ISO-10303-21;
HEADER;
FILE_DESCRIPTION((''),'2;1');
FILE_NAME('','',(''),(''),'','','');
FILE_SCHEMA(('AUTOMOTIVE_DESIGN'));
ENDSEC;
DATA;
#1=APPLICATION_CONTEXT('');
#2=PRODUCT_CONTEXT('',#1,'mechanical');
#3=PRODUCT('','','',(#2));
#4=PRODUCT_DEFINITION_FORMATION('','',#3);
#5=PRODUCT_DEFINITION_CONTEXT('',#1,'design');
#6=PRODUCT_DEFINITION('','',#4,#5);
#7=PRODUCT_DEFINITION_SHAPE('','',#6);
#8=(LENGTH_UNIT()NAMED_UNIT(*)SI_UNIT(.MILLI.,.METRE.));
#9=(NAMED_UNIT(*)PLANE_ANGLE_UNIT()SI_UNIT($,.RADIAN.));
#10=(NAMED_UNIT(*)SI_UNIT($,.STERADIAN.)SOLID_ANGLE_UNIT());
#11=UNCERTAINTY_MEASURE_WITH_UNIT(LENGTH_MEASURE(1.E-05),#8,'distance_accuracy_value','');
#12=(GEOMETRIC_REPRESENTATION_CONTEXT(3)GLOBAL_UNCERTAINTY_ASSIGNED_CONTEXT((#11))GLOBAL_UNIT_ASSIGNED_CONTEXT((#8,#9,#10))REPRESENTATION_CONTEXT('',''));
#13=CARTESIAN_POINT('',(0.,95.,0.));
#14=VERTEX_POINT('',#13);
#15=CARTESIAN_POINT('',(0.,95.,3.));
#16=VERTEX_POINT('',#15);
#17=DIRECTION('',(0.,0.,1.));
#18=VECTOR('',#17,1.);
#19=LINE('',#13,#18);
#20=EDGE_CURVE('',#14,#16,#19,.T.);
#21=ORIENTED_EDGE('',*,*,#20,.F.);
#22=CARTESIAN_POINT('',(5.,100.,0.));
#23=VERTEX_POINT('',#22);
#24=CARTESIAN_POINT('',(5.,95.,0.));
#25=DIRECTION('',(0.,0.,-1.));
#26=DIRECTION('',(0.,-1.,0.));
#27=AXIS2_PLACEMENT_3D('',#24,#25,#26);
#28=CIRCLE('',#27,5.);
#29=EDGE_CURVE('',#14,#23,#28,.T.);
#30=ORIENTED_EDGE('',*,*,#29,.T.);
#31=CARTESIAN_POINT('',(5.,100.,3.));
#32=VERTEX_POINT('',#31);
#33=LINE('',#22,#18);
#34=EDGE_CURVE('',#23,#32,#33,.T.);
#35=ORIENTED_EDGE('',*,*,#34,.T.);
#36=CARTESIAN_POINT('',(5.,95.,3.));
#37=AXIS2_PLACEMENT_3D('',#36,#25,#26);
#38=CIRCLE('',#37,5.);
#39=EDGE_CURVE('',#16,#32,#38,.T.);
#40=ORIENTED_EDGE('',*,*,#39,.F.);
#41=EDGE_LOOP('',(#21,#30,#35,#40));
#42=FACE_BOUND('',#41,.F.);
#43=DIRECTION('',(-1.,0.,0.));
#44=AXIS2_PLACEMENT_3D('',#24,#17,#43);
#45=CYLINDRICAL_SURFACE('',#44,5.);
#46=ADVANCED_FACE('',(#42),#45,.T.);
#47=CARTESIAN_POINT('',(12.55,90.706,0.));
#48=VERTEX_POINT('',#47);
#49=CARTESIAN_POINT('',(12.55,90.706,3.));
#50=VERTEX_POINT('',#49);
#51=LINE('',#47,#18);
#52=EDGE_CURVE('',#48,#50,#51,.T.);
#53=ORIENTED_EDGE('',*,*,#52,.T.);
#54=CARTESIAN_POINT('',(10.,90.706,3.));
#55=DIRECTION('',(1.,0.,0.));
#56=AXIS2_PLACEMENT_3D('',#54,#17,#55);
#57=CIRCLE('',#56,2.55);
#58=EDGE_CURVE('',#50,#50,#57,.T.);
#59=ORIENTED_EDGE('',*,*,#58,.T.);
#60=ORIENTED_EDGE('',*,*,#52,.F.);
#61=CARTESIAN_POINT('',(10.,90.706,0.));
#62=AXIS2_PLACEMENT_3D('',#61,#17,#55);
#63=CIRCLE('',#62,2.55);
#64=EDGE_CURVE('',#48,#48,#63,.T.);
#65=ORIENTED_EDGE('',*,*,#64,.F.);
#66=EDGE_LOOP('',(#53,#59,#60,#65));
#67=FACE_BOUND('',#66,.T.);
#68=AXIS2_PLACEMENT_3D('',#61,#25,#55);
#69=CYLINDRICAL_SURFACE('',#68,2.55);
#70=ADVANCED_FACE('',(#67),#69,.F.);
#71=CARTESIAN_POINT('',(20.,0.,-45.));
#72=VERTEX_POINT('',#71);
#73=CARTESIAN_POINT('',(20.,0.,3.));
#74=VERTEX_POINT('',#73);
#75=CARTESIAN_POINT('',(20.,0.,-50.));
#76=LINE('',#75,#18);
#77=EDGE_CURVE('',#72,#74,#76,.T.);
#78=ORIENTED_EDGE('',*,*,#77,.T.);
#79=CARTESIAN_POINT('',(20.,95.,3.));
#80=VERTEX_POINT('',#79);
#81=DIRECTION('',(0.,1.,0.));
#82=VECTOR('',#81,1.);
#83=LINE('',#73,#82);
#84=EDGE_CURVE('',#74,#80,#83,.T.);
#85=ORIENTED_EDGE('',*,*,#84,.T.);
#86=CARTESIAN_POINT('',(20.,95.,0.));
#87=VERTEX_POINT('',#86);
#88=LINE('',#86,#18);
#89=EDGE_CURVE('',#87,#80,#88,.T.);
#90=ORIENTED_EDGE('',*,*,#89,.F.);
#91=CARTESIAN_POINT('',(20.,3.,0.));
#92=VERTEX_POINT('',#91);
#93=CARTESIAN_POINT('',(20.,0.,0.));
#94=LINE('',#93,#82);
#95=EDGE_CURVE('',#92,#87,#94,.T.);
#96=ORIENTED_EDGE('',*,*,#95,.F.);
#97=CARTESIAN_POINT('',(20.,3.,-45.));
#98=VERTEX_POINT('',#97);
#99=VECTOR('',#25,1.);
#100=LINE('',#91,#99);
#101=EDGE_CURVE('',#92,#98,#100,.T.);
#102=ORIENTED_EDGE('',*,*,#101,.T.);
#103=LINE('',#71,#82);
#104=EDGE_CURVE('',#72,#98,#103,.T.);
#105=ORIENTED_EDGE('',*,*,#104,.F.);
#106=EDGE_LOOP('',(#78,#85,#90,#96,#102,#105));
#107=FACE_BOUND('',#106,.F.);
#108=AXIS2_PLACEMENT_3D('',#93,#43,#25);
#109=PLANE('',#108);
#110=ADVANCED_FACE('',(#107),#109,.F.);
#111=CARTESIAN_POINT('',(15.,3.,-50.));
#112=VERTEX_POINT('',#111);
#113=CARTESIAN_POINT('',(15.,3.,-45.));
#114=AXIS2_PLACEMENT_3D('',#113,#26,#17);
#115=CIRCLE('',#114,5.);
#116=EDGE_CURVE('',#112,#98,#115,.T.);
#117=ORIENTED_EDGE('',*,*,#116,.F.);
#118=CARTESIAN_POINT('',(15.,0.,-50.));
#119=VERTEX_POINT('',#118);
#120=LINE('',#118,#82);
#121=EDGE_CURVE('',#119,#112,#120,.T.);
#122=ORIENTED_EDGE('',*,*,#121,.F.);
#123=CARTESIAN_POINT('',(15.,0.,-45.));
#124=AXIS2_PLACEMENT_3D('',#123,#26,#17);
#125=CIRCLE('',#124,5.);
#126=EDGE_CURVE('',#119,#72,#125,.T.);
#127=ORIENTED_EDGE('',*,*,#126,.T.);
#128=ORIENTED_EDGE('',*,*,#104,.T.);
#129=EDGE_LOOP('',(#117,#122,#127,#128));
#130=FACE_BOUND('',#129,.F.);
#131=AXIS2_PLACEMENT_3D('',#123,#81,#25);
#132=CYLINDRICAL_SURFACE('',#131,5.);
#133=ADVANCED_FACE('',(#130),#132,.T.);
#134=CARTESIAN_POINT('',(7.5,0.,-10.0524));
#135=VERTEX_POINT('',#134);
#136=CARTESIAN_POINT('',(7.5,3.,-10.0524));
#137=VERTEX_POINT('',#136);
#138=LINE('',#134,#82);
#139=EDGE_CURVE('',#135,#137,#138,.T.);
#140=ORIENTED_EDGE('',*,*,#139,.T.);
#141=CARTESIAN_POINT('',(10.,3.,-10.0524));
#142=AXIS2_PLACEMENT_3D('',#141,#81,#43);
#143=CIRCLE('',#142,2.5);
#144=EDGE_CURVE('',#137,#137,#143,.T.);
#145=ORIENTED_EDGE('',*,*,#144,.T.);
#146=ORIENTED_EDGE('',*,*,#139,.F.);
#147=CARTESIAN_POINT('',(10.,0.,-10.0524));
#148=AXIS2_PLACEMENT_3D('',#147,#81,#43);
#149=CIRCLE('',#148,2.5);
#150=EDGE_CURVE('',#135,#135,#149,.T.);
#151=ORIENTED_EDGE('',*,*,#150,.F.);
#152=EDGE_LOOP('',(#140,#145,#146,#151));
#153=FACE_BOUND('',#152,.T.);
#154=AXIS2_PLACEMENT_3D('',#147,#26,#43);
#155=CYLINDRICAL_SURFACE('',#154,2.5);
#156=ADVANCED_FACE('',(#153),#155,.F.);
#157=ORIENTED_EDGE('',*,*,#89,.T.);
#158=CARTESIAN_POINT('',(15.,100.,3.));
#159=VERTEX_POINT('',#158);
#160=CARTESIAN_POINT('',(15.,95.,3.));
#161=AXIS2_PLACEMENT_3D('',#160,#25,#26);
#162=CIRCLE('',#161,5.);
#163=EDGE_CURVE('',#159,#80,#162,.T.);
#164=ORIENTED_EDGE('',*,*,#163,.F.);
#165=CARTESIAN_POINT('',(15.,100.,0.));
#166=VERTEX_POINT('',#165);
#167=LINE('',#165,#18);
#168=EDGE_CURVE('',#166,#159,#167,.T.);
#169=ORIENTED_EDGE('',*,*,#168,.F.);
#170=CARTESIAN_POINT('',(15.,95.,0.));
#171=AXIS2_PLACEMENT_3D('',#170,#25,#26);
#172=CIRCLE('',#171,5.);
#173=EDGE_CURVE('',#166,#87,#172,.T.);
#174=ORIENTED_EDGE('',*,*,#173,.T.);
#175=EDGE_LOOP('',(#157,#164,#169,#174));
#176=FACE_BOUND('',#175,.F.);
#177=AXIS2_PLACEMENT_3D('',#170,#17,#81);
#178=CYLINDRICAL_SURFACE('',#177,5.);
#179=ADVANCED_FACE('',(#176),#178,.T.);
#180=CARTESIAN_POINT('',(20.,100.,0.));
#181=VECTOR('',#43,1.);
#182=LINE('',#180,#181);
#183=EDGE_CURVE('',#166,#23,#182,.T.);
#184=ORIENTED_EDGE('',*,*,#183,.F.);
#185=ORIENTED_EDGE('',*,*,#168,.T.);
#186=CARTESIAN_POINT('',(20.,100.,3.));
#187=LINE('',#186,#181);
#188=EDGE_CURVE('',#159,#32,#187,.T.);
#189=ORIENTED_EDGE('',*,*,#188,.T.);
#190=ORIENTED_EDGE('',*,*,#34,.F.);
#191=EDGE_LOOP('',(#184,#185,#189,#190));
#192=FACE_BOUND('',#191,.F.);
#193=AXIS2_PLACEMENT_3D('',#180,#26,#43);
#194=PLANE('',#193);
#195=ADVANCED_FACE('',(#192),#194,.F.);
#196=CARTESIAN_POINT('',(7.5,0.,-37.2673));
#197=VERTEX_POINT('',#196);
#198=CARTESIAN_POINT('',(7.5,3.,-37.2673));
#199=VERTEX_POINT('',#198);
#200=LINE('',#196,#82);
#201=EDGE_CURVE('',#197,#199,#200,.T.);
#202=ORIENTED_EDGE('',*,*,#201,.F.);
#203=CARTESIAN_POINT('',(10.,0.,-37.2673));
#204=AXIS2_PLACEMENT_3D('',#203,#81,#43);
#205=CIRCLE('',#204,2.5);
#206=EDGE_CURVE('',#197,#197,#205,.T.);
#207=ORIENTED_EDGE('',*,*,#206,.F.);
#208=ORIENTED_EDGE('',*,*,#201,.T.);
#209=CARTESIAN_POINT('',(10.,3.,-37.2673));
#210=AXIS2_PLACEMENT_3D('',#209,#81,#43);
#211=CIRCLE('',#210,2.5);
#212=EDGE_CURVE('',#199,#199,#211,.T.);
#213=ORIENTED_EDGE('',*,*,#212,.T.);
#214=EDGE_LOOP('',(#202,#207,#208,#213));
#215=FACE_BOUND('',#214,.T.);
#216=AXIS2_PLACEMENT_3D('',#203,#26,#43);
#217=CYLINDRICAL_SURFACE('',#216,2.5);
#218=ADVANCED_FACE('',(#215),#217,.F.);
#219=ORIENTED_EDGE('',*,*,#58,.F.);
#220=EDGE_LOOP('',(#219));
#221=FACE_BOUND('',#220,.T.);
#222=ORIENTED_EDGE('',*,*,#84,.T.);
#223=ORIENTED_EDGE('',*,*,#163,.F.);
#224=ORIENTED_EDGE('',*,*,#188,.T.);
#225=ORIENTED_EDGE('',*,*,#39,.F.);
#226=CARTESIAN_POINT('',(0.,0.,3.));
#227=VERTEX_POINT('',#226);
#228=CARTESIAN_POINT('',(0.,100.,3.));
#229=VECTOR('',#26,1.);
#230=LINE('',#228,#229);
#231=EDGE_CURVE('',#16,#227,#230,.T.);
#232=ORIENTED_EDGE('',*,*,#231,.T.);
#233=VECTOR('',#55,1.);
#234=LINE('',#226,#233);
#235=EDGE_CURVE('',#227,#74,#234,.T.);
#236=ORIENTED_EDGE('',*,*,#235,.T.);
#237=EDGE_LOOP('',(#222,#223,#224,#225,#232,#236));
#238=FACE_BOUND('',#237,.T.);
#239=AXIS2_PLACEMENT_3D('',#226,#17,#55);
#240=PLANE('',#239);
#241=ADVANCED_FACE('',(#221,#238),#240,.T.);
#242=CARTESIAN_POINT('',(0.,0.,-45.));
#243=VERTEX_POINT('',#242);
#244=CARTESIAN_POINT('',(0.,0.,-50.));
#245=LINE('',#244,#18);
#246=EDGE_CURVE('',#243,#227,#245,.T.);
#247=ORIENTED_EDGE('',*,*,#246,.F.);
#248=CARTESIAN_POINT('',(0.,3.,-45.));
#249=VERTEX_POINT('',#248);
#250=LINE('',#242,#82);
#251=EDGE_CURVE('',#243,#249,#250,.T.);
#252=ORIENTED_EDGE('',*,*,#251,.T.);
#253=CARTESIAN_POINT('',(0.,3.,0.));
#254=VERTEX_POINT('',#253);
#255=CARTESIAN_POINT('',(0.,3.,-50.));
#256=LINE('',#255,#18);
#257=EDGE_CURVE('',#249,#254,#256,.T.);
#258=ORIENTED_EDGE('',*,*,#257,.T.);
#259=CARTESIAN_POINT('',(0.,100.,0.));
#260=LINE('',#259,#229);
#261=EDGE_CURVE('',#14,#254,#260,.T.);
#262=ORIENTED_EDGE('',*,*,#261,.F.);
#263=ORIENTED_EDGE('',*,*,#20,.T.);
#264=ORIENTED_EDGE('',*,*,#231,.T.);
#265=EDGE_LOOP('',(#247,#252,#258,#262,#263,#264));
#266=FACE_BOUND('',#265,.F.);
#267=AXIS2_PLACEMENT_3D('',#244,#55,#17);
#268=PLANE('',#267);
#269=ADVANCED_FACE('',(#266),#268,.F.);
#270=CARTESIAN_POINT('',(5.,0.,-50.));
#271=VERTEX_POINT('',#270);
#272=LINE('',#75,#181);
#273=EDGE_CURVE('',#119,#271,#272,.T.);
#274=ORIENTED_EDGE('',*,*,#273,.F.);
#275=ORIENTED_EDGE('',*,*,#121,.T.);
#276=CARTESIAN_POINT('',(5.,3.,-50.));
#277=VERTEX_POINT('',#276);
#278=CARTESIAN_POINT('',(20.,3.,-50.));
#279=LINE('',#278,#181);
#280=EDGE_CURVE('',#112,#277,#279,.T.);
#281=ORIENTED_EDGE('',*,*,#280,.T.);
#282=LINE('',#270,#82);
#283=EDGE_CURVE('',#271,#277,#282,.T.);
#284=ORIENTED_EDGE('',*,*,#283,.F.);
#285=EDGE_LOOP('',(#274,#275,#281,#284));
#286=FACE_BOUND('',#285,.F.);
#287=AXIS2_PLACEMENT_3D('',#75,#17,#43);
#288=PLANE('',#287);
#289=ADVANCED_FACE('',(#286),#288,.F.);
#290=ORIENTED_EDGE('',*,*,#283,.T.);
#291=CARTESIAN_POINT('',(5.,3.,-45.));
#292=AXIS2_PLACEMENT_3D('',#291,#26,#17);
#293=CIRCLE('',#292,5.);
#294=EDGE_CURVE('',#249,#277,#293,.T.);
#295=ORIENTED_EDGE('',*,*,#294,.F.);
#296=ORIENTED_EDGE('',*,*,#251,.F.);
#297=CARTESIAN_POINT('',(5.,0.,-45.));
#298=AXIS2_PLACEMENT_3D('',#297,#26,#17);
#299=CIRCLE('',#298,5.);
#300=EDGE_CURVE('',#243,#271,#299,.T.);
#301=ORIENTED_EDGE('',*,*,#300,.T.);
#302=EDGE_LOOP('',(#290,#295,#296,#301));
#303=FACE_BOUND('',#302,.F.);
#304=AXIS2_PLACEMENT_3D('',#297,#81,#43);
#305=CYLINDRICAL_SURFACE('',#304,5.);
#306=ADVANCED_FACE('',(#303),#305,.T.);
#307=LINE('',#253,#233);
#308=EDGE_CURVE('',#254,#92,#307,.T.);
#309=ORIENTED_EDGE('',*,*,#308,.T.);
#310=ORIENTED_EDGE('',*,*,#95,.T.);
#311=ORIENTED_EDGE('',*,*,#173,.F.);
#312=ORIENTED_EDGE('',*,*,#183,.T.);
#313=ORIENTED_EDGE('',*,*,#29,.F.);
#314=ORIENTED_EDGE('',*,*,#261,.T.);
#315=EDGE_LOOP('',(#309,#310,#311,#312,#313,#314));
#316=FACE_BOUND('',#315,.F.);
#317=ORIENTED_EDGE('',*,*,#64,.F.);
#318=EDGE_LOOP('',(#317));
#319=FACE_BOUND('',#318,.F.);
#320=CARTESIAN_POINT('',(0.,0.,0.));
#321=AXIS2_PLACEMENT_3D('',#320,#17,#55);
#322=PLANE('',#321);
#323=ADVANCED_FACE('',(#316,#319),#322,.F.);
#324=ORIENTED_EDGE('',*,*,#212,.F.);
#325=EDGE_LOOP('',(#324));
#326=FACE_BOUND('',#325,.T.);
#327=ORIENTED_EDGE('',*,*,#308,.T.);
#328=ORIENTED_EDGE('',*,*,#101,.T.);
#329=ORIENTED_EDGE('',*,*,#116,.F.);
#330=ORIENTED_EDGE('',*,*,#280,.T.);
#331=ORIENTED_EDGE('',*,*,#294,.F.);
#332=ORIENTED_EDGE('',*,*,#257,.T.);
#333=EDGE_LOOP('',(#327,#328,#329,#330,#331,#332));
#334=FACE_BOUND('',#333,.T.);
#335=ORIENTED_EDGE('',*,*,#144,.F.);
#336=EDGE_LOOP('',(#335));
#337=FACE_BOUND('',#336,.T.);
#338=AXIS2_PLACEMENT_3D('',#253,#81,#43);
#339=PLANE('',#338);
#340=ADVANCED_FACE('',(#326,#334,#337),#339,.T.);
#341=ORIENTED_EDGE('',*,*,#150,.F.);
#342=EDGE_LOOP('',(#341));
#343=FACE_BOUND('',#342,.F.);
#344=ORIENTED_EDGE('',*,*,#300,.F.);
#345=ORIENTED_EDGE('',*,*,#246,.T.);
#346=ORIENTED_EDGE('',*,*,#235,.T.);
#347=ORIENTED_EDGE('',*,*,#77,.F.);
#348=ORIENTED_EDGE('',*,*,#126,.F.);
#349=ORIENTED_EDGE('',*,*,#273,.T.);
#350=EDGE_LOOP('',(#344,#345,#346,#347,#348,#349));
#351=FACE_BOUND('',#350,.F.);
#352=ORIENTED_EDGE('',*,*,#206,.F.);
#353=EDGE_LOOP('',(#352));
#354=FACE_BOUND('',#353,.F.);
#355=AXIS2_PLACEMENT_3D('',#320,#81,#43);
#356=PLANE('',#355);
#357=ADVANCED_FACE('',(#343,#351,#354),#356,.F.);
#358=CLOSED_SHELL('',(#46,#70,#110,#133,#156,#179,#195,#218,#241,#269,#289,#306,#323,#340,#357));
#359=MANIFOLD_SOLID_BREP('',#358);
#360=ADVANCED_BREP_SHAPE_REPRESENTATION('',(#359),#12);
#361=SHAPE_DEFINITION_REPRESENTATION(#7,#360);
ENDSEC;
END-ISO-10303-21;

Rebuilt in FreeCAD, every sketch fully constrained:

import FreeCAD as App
import Part
import Sketcher

V = App.Vector


def edges_at(feature, points):
    """Names of the edges that pass closest to the given points."""
    edges = feature.Shape.Edges
    near = lambda p: min(range(len(edges)), key=lambda i: edges[i].distToShape(Part.Vertex(*p))[0])
    return sorted({f"Edge{near(p) + 1}" for p in points})


def add_polygon(sketch, points):
    """Adds a closed chain of lines whose ends are joined by coincident constraints."""
    first, n = sketch.GeometryCount, len(points)
    for a, b in zip(points, points[1:] + points[:1]):
        sketch.addGeometry(Part.LineSegment(App.Vector(*a, 0), App.Vector(*b, 0)), False)
    for i in range(n):
        sketch.addConstraint(Sketcher.Constraint("Coincident", first + i, 2, first + (i + 1) % n, 1))

doc = App.newDocument("Part")
body = doc.addObject("PartDesign::Body", "Body")

sketch1 = body.newObject("Sketcher::SketchObject", "Sketch")
sketch1.AttachmentSupport = (doc.getObject("XZ_Plane"), [""])
sketch1.MapMode = "FlatFace"
add_polygon(sketch1, [(0, -50), (0, 0), (20, 0), (20, -50)])
sketch1.addGeometry(Part.Circle(V(10, -37.3, 0), V(0, 0, 1), 2.5), False)
sketch1.addGeometry(Part.Circle(V(10, -10.1, 0), V(0, 0, 1), 2.5), False)
sketch1.addConstraint([
    Sketcher.Constraint("Vertical", 0),
    Sketcher.Constraint("Horizontal", 1),
    Sketcher.Constraint("Vertical", 2),
    Sketcher.Constraint("Horizontal", 3),
    Sketcher.Constraint("Coincident", 0, 2, -1, 1),
    Sketcher.Constraint("Equal", 4, 5),
    Sketcher.Constraint("Vertical", 4, 3, 5, 3),
    Sketcher.Constraint("Diameter", 4, 5.0),
    Sketcher.Constraint("DistanceX", 1, 1, 1, 2, 20.0),
    Sketcher.Constraint("DistanceY", 0, 1, 0, 2, 50.0),
    Sketcher.Constraint("DistanceX", -1, 1, 4, 3, 10.0),
    Sketcher.Constraint("DistanceY", 4, 3, 5, 3, 27.215),
    Sketcher.Constraint("DistanceY", 4, 3, -1, 1, 37.2673),
])
pad1 = body.newObject("PartDesign::Pad", "Pad")
pad1.Profile = sketch1
pad1.Length = 3
pad1.Reversed = True

sketch2 = body.newObject("Sketcher::SketchObject", "Sketch001")
sketch2.AttachmentSupport = (doc.getObject("XY_Plane"), [""])
sketch2.MapMode = "FlatFace"
add_polygon(sketch2, [(0, 100), (0, 0), (20, 0), (20, 100)])
sketch2.addGeometry(Part.Circle(V(10, 90.7, 0), V(0, 0, 1), 2.5), False)
sketch2.addConstraint([
    Sketcher.Constraint("Vertical", 0),
    Sketcher.Constraint("Horizontal", 1),
    Sketcher.Constraint("Vertical", 2),
    Sketcher.Constraint("Horizontal", 3),
    Sketcher.Constraint("Coincident", 0, 2, -1, 1),
    Sketcher.Constraint("Diameter", 4, 5.1),
    Sketcher.Constraint("DistanceX", 1, 1, 1, 2, 20.0),
    Sketcher.Constraint("DistanceY", 0, 2, 0, 1, 100.0),
    Sketcher.Constraint("DistanceX", -1, 1, 4, 3, 10.0),
    Sketcher.Constraint("DistanceY", -1, 1, 4, 3, 90.706),
])
pad2 = body.newObject("PartDesign::Pad", "Pad001")
pad2.Profile = sketch2
pad2.Length = 3
doc.recompute()

fillet = body.newObject("PartDesign::Fillet", "Fillet")
fillet.Base = (pad2, edges_at(pad2, [(20, 1.5, -50), (0, 1.5, -50)]))
fillet.Radius = 5
doc.recompute()

fillet2 = body.newObject("PartDesign::Fillet", "Fillet001")
fillet2.Base = (fillet, edges_at(fillet, [(20, 100, 1.5), (0, 100, 1.5)]))
fillet2.Radius = 5

doc.recompute()
